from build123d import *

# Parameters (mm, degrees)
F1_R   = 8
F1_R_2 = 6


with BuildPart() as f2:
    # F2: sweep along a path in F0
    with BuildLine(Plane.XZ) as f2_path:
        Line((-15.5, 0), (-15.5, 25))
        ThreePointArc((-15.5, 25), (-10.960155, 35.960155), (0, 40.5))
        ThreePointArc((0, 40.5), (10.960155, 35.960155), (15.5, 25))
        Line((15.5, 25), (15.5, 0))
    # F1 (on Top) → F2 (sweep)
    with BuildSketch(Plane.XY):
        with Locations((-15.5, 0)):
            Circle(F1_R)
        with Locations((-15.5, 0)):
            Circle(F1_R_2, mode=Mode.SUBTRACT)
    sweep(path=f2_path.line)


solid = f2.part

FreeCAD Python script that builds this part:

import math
import FreeCAD as App
import Part
import Sketcher
from FreeCAD import Vector

doc = App.newDocument("Part")
body = doc.addObject("PartDesign::Body", "Body")

sketch1 = doc.addObject("Sketcher::SketchObject", "Sketch")
body.addObject(sketch1)
sketch1.AttachmentSupport = (doc.XY_Plane, [""])
sketch1.MapMode = "FlatFace"
sketch1.addGeometry(Part.Circle(Vector(-16, 0, 0), Vector(0, 0, 1), 8), False)
sketch1.addGeometry(Part.Circle(Vector(-16, 0, 0), Vector(0, 0, 1), 6), False)
sketch1.addConstraint(Sketcher.Constraint("Coincident", 1, 3, 0, 3))
sketch1.addConstraint(Sketcher.Constraint("PointOnObject", 0, 3, -1))
sketch1.addConstraint(Sketcher.Constraint("Diameter", 0, 16.0))
sketch1.addConstraint(Sketcher.Constraint("Diameter", 1, 12.0))
sketch1.addConstraint(Sketcher.Constraint("DistanceX", 0, 3, -1, 1, 15.5))

sketch2 = doc.addObject("Sketcher::SketchObject", "Sketch001")
body.addObject(sketch2)
sketch2.AttachmentSupport = (doc.XZ_Plane, [""])
sketch2.MapMode = "FlatFace"
sketch2.addGeometry(Part.LineSegment(Vector(-16, 0, 0), Vector(-16, 25, 0)), False)
sketch2.addGeometry(Part.ArcOfCircle(Part.Circle(Vector(0, 25, 0), Vector(0, 0, 1), 16), math.radians(90), math.radians(180)), False)
sketch2.addGeometry(Part.ArcOfCircle(Part.Circle(Vector(0, 25, 0), Vector(0, 0, 1), 16), math.radians(0), math.radians(90)), False)
sketch2.addGeometry(Part.LineSegment(Vector(16, 25, 0), Vector(16, 0, 0)), False)
sketch2.addConstraint(Sketcher.Constraint("Tangent", 0, 2, 1, 2))
sketch2.addConstraint(Sketcher.Constraint("Tangent", 1, 1, 2, 2))
sketch2.addConstraint(Sketcher.Constraint("Tangent", 2, 1, 3, 1))
sketch2.addConstraint(Sketcher.Constraint("Vertical", 0))
sketch2.addConstraint(Sketcher.Constraint("Vertical", 3))
sketch2.addConstraint(Sketcher.Constraint("Equal", 1, 2))
sketch2.addConstraint(Sketcher.Constraint("Symmetric", 0, 1, 3, 2, -1, 1))
sketch2.addConstraint(Sketcher.Constraint("PointOnObject", 0, 1, -1))
sketch2.addConstraint(Sketcher.Constraint("PointOnObject", 1, 1, -2))
sketch2.addConstraint(Sketcher.Constraint("Radius", 1, 15.5))
sketch2.addConstraint(Sketcher.Constraint("DistanceY", 0, 1, 0, 2, 25.0))
doc.recompute()

additivepipe = doc.addObject("PartDesign::AdditivePipe", "AdditivePipe")
body.addObject(additivepipe)
additivepipe.Profile = sketch1
additivepipe.Spine = (sketch2, ["Edge1", "Edge2", "Edge3", "Edge4"])

doc.recompute()
